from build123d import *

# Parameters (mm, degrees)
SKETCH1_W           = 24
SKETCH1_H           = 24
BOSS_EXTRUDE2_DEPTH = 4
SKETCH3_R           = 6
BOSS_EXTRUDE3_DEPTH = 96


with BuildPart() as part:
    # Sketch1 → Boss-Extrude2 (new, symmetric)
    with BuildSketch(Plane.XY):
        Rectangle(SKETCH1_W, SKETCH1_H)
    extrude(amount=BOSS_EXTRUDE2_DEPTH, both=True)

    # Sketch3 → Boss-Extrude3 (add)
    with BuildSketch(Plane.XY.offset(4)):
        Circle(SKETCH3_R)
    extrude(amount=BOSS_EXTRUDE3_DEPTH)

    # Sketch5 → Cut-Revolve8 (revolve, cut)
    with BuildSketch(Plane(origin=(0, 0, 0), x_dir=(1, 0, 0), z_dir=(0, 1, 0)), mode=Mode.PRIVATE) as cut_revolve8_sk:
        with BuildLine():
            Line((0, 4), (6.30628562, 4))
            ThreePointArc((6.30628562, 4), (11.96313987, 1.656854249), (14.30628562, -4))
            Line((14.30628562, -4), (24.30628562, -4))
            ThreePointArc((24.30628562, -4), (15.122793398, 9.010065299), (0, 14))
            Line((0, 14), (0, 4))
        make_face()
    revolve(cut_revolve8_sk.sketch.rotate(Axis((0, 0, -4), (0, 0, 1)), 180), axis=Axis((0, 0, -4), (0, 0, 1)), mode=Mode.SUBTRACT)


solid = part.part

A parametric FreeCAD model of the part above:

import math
import FreeCAD as App
import Part
import Sketcher
from FreeCAD import Vector

doc = App.newDocument("Part")
body = doc.addObject("PartDesign::Body", "Body")

# Sketch on XY plane
sketch1 = doc.addObject("Sketcher::SketchObject", "Sketch")
body.addObject(sketch1)
sketch1.AttachmentSupport = (doc.XY_Plane, [""])
sketch1.MapMode = "FlatFace"
sketch1.addGeometry([
    Part.LineSegment(Vector(-12, 12, 0), Vector(-12, -12, 0)),
    Part.LineSegment(Vector(-12, -12, 0), Vector(12, -12, 0)),
    Part.LineSegment(Vector(12, -12, 0), Vector(12, 12, 0)),
    Part.LineSegment(Vector(12, 12, 0), Vector(-12, 12, 0)),
], False)
sketch1.addConstraint([
    Sketcher.Constraint("Coincident", 0, 2, 1, 1),
    Sketcher.Constraint("Coincident", 1, 2, 2, 1),
    Sketcher.Constraint("Coincident", 2, 2, 3, 1),
    Sketcher.Constraint("Coincident", 3, 2, 0, 1),
    Sketcher.Constraint("Vertical", 0),
    Sketcher.Constraint("Horizontal", 1),
    Sketcher.Constraint("Vertical", 2),
    Sketcher.Constraint("Horizontal", 3),
    Sketcher.Constraint("Symmetric", 0, 2, 2, 2, -1, 1),
    Sketcher.Constraint("Equal", 3, 0),
    Sketcher.Constraint("DistanceX", 1, 1, 1, 2, 24.0),
])
pad1 = doc.addObject("PartDesign::Pad", "Pad")
body.addObject(pad1)
pad1.Profile = sketch1
pad1.Length = 8
pad1.Midplane = True

# Sketch on XY plane
sketch2 = doc.addObject("Sketcher::SketchObject", "Sketch001")
body.addObject(sketch2)
sketch2.AttachmentSupport = (doc.XY_Plane, [""])
sketch2.MapMode = "FlatFace"
sketch2.AttachmentOffset = App.Placement(Vector(0, 0, 4), App.Rotation())
sketch2.addGeometry(Part.Circle(Vector(0, 0, 0), Vector(0, 0, 1), 6), False)
sketch2.addConstraint([
    Sketcher.Constraint("Coincident", 0, 3, -1, 1),
    Sketcher.Constraint("Diameter", 0, 12.0),
])
pad2 = doc.addObject("PartDesign::Pad", "Pad001")
body.addObject(pad2)
pad2.Profile = sketch2
pad2.Length = 96

# Sketch on XZ plane
sketch3 = doc.addObject("Sketcher::SketchObject", "Sketch002")
body.addObject(sketch3)
sketch3.AttachmentSupport = (doc.XZ_Plane, [""])
sketch3.MapMode = "FlatFace"
sketch3.addGeometry([
    Part.LineSegment(Vector(0, -4, 0), Vector(6, -4, 0)),  # 0
    Part.ArcOfCircle(Part.Circle(Vector(6, 4, 0), Vector(0, 0, 1), 8), math.radians(-90), math.radians(0)),  # 1
    Part.LineSegment(Vector(14, 4, 0), Vector(24, 4, 0)),  # 2
    Part.ArcOfCircle(Part.Circle(Vector(0, 11, 0), Vector(0, 0, 1), 25), math.radians(-90), math.radians(-17)),  # 3
    Part.LineSegment(Vector(0, -14, 0), Vector(0, -4, 0)),  # 4
], False)
sketch3.addConstraint([
    Sketcher.Constraint("Tangent", 0, 2, 1, 1),
    Sketcher.Constraint("Coincident", 1, 2, 2, 1),
    Sketcher.Constraint("Coincident", 2, 2, 3, 2),
    Sketcher.Constraint("Coincident", 3, 1, 4, 1),
    Sketcher.Constraint("Coincident", 4, 2, 0, 1),
    Sketcher.Constraint("Horizontal", 0),
    Sketcher.Constraint("Horizontal", 2),
    Sketcher.Constraint("Vertical", 4),
    Sketcher.Constraint("PointOnObject", 3, 3, -2),
    Sketcher.Constraint("PointOnObject", 3, 1, -2),
    Sketcher.Constraint("Equal", 2, 4),
    Sketcher.Constraint("Radius", 1, 8.0),
    Sketcher.Constraint("DistanceX", 2, 1, 2, 2, 10.0),
    Sketcher.Constraint("DistanceY", -1, 1, 1, 3, 4.0),
    Sketcher.Constraint("DistanceY", -1, 1, 1, 2, 4.0),
    Sketcher.Constraint("Radius", 3, 25.410987),
])
groove = doc.addObject("PartDesign::Groove", "Groove")
body.addObject(groove)
groove.Profile = sketch3
groove.ReferenceAxis = (sketch3, ["V_Axis"])
groove.Angle = 360

doc.recompute()
